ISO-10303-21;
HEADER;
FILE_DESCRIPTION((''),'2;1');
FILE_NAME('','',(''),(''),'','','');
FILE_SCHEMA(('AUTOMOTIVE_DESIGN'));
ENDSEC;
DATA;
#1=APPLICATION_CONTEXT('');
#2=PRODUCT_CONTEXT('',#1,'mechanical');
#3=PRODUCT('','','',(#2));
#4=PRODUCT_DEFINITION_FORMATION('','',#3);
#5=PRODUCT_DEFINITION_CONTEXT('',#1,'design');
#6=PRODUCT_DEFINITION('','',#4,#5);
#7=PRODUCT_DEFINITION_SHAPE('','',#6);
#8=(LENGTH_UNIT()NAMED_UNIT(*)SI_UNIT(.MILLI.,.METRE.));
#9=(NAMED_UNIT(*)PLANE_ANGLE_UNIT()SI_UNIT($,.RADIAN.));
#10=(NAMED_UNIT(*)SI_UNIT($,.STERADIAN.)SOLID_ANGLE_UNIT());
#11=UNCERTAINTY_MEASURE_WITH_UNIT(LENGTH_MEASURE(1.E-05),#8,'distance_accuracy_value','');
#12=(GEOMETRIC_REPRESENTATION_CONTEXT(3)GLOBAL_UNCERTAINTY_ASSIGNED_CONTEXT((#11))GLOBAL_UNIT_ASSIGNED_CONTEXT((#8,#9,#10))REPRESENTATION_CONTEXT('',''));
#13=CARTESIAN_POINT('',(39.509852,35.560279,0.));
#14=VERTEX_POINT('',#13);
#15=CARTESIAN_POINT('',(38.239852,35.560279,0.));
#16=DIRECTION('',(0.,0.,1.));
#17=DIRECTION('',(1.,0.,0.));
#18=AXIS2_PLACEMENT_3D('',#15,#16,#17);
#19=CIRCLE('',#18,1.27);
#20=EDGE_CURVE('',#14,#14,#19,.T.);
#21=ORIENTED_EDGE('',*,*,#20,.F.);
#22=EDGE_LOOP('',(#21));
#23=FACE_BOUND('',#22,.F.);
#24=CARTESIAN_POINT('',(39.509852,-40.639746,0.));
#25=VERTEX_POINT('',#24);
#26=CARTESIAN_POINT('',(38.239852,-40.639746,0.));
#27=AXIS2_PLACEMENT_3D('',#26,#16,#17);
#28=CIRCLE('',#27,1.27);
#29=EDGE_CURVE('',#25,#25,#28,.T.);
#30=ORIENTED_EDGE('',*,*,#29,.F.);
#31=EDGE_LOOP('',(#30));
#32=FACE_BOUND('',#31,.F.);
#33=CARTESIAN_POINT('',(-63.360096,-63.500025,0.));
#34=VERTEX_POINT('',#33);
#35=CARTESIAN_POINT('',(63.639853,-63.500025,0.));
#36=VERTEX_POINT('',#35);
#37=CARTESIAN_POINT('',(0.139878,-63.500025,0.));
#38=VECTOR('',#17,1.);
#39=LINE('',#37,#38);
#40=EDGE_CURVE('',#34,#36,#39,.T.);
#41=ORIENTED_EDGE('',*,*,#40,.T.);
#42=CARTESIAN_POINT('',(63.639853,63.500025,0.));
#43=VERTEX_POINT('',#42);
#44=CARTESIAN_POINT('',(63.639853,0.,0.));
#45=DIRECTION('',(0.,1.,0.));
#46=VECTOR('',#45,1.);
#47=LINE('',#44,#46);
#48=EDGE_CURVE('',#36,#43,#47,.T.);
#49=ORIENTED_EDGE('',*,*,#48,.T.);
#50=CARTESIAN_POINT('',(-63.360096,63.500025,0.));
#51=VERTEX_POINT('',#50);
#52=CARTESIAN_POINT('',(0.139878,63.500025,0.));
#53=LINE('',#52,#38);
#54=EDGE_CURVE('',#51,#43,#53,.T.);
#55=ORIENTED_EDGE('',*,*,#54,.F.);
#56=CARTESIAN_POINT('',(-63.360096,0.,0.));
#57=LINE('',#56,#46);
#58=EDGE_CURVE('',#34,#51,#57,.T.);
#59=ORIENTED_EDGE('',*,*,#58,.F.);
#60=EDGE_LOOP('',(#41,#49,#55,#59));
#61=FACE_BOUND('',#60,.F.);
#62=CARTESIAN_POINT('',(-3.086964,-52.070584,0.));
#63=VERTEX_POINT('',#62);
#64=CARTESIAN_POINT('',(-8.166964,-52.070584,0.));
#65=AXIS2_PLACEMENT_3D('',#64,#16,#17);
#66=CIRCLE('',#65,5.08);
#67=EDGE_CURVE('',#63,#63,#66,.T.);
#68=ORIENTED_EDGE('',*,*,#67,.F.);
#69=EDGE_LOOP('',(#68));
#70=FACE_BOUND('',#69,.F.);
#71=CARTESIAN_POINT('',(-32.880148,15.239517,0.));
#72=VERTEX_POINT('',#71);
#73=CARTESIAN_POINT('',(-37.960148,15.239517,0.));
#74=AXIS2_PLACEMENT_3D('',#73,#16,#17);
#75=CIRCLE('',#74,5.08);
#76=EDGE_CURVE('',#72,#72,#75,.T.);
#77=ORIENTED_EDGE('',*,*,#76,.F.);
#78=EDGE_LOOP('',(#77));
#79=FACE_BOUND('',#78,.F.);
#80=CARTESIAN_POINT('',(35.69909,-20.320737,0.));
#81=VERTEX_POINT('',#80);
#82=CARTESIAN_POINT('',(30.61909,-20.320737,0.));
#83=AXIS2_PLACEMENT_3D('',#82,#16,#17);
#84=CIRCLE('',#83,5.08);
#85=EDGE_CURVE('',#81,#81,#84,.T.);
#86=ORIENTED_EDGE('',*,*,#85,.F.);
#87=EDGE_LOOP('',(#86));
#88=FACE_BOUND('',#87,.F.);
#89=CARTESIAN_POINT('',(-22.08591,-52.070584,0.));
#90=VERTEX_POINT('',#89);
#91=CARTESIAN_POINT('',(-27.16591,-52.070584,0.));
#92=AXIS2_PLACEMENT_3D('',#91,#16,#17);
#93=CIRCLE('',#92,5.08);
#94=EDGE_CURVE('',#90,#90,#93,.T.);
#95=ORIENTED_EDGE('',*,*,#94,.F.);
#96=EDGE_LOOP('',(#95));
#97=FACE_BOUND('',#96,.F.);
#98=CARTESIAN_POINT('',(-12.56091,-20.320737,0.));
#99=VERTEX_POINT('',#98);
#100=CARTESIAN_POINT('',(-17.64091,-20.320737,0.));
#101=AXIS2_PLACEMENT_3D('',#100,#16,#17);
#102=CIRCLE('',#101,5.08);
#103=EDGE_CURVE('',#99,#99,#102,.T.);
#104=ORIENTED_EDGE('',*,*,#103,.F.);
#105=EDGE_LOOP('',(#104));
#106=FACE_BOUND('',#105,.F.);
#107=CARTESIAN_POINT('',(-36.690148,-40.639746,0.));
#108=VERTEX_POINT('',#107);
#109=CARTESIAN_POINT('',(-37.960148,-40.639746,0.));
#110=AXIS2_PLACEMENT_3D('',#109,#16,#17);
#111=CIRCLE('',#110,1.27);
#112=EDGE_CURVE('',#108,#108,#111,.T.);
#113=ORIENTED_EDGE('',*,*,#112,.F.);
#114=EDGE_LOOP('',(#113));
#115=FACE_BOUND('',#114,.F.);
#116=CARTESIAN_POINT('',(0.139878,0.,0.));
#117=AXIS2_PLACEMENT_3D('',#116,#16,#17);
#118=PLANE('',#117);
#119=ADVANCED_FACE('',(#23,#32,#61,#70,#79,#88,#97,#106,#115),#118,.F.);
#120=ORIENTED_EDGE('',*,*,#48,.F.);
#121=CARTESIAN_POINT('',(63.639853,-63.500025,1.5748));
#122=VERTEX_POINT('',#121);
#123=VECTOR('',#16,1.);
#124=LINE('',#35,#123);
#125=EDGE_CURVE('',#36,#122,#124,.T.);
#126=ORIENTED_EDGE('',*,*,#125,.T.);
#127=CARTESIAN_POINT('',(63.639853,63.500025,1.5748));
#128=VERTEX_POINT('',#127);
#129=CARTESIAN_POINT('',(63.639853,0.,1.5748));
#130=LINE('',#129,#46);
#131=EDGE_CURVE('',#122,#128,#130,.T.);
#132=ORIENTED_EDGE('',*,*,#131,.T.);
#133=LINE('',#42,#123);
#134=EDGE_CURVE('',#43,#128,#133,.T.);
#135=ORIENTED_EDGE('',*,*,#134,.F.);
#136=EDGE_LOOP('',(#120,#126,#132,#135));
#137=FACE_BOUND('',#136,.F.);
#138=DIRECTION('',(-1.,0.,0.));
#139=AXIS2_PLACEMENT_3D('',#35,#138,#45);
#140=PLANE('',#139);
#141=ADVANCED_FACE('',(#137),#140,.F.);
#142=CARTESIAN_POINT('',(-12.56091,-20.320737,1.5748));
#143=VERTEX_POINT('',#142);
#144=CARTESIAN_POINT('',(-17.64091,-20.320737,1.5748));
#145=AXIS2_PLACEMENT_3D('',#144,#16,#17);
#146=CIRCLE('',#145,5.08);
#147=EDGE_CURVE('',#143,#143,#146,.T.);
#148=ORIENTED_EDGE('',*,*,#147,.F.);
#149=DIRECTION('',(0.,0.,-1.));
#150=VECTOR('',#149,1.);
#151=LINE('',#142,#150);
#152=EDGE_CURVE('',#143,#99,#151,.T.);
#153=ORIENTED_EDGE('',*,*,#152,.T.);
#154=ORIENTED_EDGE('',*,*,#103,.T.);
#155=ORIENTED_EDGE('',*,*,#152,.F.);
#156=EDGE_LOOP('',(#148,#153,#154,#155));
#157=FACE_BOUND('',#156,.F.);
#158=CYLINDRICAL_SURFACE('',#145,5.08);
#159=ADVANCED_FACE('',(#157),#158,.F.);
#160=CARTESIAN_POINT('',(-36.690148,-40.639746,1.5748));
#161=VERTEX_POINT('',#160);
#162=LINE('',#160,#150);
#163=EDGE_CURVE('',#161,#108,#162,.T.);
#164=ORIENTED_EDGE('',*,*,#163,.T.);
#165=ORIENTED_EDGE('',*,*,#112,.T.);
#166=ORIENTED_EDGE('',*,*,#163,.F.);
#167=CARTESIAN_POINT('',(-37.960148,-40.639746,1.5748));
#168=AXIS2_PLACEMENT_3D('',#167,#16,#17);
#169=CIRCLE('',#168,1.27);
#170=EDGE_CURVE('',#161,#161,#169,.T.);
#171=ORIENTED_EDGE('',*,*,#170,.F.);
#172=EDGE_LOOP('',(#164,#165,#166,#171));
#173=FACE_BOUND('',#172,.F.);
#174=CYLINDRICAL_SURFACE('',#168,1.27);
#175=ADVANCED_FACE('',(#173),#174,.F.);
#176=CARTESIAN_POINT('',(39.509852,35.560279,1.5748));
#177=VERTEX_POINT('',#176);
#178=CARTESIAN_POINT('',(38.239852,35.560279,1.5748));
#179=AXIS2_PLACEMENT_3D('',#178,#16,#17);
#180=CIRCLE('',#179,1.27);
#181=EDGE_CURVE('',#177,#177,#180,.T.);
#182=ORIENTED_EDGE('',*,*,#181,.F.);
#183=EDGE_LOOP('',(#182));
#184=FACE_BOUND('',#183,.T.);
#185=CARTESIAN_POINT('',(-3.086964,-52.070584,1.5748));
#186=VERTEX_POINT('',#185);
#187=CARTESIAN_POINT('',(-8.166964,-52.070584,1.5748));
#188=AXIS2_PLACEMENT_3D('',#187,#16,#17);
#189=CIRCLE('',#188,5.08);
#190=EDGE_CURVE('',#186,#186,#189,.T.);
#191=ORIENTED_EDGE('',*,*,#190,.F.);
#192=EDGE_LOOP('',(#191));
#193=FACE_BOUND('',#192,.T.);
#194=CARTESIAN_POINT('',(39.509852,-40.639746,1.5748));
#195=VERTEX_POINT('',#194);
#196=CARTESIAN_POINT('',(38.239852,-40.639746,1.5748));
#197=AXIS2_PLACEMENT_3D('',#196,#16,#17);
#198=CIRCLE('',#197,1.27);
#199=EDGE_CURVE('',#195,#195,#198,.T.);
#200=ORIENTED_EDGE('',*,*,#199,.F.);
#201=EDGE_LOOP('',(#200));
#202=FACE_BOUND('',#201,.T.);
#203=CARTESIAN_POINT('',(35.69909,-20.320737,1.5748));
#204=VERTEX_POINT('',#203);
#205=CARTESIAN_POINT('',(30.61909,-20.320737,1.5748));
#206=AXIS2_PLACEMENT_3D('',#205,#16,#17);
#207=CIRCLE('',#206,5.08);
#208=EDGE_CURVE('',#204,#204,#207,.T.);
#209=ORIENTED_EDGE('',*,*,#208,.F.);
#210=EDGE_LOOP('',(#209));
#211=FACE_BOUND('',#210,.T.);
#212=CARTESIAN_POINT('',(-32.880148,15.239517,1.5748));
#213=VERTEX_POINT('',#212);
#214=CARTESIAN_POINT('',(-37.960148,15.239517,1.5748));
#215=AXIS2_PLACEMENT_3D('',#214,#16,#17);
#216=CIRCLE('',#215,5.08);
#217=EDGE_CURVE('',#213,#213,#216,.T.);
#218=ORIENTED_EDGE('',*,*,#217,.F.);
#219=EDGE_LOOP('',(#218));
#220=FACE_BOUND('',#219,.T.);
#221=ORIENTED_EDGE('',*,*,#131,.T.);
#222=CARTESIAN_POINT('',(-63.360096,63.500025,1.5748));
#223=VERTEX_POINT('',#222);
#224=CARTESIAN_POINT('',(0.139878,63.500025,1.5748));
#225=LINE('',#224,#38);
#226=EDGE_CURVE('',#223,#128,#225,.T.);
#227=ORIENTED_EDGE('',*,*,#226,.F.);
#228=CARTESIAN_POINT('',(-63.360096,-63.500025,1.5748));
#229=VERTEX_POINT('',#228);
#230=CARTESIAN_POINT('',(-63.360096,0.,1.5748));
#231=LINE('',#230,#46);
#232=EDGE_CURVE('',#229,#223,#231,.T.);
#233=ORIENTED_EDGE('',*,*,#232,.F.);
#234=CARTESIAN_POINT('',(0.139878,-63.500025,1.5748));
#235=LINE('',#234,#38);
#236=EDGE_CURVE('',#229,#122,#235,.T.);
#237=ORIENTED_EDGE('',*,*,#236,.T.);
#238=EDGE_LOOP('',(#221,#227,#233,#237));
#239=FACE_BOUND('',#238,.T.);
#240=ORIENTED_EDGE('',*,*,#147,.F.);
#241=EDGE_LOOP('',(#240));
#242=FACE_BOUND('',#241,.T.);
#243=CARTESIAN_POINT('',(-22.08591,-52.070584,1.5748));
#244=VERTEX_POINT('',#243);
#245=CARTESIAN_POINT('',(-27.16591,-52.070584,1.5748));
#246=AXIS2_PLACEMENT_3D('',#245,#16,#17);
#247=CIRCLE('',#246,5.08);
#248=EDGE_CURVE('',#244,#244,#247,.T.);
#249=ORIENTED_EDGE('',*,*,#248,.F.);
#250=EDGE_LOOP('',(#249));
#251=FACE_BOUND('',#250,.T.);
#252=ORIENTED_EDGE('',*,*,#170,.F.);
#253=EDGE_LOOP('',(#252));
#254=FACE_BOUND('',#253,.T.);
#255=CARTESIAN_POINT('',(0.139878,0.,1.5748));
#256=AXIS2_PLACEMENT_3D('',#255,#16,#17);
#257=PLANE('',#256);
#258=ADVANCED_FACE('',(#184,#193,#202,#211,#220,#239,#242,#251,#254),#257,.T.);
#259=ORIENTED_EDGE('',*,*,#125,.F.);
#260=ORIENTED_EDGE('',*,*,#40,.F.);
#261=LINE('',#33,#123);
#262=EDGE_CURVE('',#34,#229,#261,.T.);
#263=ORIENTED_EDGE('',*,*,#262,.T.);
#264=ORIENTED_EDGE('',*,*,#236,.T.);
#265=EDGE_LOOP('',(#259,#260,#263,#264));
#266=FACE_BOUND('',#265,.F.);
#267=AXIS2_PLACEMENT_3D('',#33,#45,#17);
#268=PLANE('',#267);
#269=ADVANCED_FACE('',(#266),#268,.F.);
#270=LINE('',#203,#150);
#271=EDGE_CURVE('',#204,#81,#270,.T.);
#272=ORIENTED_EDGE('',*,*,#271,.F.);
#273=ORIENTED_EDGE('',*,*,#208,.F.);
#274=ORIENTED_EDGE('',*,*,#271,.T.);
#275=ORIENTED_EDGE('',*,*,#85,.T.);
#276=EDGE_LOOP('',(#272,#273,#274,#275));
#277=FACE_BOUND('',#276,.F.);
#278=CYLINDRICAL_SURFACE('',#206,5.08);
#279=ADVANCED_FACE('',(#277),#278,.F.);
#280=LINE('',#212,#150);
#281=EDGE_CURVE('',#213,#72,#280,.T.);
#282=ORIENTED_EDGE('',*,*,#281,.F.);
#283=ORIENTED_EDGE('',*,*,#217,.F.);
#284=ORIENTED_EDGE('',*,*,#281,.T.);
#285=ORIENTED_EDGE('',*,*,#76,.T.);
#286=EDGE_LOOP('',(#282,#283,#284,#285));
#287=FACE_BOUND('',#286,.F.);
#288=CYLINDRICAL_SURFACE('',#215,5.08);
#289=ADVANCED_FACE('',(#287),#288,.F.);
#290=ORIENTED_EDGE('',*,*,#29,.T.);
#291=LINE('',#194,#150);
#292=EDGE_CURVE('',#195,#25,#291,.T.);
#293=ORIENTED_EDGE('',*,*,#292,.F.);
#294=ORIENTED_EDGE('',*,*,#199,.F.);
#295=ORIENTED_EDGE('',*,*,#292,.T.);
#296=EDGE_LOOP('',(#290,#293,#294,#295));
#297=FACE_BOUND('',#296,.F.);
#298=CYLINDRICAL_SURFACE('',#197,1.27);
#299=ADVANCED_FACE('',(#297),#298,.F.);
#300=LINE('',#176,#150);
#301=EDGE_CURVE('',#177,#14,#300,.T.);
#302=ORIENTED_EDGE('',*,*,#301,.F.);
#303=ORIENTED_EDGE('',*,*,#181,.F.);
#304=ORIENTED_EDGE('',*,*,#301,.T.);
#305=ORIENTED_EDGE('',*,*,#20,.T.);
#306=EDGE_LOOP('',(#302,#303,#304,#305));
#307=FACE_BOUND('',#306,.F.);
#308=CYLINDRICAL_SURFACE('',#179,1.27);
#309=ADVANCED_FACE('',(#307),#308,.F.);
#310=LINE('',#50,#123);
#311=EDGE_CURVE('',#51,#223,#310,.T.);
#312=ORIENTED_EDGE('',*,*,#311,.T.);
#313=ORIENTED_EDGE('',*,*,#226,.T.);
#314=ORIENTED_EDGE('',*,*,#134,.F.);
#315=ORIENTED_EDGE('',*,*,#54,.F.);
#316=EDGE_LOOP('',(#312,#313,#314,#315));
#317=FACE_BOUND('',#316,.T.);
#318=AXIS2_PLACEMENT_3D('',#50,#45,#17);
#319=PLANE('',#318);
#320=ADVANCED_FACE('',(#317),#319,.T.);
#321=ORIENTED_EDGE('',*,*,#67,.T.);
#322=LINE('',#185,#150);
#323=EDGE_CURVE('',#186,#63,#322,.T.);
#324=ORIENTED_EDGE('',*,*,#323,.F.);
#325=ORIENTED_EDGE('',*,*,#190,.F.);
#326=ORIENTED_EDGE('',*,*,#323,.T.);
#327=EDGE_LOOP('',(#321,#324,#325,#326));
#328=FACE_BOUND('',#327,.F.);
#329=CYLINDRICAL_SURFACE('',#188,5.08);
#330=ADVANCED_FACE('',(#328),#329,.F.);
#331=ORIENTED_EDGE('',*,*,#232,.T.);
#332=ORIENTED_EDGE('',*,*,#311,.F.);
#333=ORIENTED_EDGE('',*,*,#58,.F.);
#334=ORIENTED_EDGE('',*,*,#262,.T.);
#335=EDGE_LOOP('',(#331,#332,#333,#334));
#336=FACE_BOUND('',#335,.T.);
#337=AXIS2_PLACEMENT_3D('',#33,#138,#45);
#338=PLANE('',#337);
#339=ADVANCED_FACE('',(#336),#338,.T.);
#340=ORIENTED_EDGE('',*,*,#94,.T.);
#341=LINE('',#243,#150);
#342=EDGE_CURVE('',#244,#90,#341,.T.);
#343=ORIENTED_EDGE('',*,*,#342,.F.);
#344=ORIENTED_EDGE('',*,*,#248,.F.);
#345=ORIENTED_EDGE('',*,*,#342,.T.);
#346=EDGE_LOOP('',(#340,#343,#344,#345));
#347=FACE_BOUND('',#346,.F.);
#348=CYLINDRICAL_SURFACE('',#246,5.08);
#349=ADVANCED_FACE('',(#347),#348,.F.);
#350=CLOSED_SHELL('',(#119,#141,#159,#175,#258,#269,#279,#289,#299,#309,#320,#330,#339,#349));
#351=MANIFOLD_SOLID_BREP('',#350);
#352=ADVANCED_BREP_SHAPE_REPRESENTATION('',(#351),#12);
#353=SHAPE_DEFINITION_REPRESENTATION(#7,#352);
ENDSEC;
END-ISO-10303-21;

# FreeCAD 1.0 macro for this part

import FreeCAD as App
import Part
import Sketcher
Q = App.Units.Quantity


def add_polygon(sketch, points):
    """Adds a closed chain of lines whose ends are joined by coincident constraints."""
    first, n = sketch.GeometryCount, len(points)
    for a, b in zip(points, points[1:] + points[:1]):
        sketch.addGeometry(Part.LineSegment(App.Vector(*a, 0), App.Vector(*b, 0)), False)
    for i in range(n):
        sketch.addConstraint(Sketcher.Constraint("Coincident", first + i, 2, first + (i + 1) % n, 1))

doc = App.newDocument("Part")
params = doc.addObject("Spreadsheet::Sheet", "Params")
for row, (alias, value) in enumerate([
    ("pad1_length", "0.062 in"),
    ("sketch2_diameter", "0.4 in"),
    ("sketch2_diameter2", "0.1 in"),
], start=1):
    params.set(f"A{row}", alias)
    params.set(f"B{row}", "=" + value)
    params.setAlias(f"B{row}", alias)

body = doc.addObject("PartDesign::Body", "Body")

# Sketch on XY plane
sketch1 = body.newObject("Sketcher::SketchObject", "Sketch")
sketch1.AttachmentSupport = (doc.getObject("XY_Plane"), [""])
sketch1.MapMode = "FlatFace"
add_polygon(sketch1, [(-63, 64), (-63, -64), (64, -64), (64, 64)])  # lines 0-3
sketch1.addConstraint(Sketcher.Constraint("Vertical", 0))
sketch1.addConstraint(Sketcher.Constraint("Horizontal", 1))
sketch1.addConstraint(Sketcher.Constraint("Vertical", 2))
sketch1.addConstraint(Sketcher.Constraint("Horizontal", 3))
sketch1.addConstraint(Sketcher.Constraint("DistanceX", 1, 1, 1, 2, 126.999949))
sketch1.addConstraint(Sketcher.Constraint("DistanceY", 0, 2, 0, 1, 127.00005))
sketch1.addConstraint(Sketcher.Constraint("DistanceX", 0, 2, -1, 1, 63.360096))
sketch1.addConstraint(Sketcher.Constraint("DistanceY", 0, 2, -1, 1, 63.500025))
pad1 = body.newObject("PartDesign::Pad", "Pad")
pad1.Profile = sketch1
pad1.setExpression("Length", "Params.pad1_length")

# Sketch on XY plane
sketch2 = body.newObject("Sketcher::SketchObject", "Sketch001")
sketch2.AttachmentSupport = (doc.getObject("XY_Plane"), [""])
sketch2.MapMode = "FlatFace"
sketch2.AttachmentOffset = App.Placement(App.Vector(0, 0, 0.062 * 25.4), App.Rotation())
sketch2.addGeometry(Part.Circle(App.Vector(-27.2, -52.1, 0), App.Vector(0, 0, 1), 5.1), False)
sketch2.addGeometry(Part.Circle(App.Vector(-8.2, -52.1, 0), App.Vector(0, 0, 1), 5.1), False)
sketch2.addGeometry(Part.Circle(App.Vector(-38, -40.6, 0), App.Vector(0, 0, 1), 1.3), False)
sketch2.addGeometry(Part.Circle(App.Vector(38.2, -40.6, 0), App.Vector(0, 0, 1), 1.3), False)
sketch2.addGeometry(Part.Circle(App.Vector(38.2, 35.6, 0), App.Vector(0, 0, 1), 1.3), False)
sketch2.addGeometry(Part.Circle(App.Vector(-17.6, -20.3, 0), App.Vector(0, 0, 1), 5.1), False)
sketch2.addGeometry(Part.Circle(App.Vector(30.6, -20.3, 0), App.Vector(0, 0, 1), 5.1), False)
sketch2.addGeometry(Part.Circle(App.Vector(-38, 15.2, 0), App.Vector(0, 0, 1), 5.1), False)
sketch2.addConstraint(Sketcher.Constraint("Equal", 0, 1))
sketch2.addConstraint(Sketcher.Constraint("Equal", 2, 3))
sketch2.addConstraint(Sketcher.Constraint("Equal", 3, 4))
sketch2.addConstraint(Sketcher.Constraint("Equal", 1, 5))
sketch2.addConstraint(Sketcher.Constraint("Equal", 5, 6))
sketch2.addConstraint(Sketcher.Constraint("Equal", 6, 7))
sketch2.addConstraint(Sketcher.Constraint("Horizontal", 0, 3, 1, 3))
sketch2.addConstraint(Sketcher.Constraint("Horizontal", 2, 3, 3, 3))
sketch2.addConstraint(Sketcher.Constraint("Horizontal", 5, 3, 6, 3))
sketch2.addConstraint(Sketcher.Constraint("Vertical", 3, 3, 4, 3))
sketch2.addConstraint(Sketcher.Constraint("Vertical", 2, 3, 7, 3))
sketch2.addConstraint(Sketcher.Constraint("Diameter", 0, Q("0.4 in")))
sketch2.addConstraint(Sketcher.Constraint("Diameter", 2, Q("0.1 in")))
sketch2.addConstraint(Sketcher.Constraint("DistanceX", 2, 3, 3, 3, Q("3 in")))
sketch2.addConstraint(Sketcher.Constraint("DistanceX", 5, 3, 6, 3, Q("1.9 in")))
sketch2.addConstraint(Sketcher.Constraint("DistanceX", 0, 3, 5, 3, Q("0.375 in")))
sketch2.addConstraint(Sketcher.Constraint("DistanceY", 0, 3, 7, 3, 67.310101))
sketch2.addConstraint(Sketcher.Constraint("DistanceX", 0, 3, -1, 1, 27.16591))
sketch2.addConstraint(Sketcher.Constraint("DistanceY", -1, 1, 4, 3, 35.560279))
sketch2.addConstraint(Sketcher.Constraint("DistanceX", 0, 3, 3, 3, 65.405762))
sketch2.addConstraint(Sketcher.Constraint("DistanceY", 2, 3, 5, 3, 20.319009))
sketch2.addConstraint(Sketcher.Constraint("DistanceY", 0, 3, -1, 1, 52.070584))
sketch2.addConstraint(Sketcher.Constraint("DistanceX", 1, 3, -1, 1, 8.166964))
sketch2.addConstraint(Sketcher.Constraint("DistanceY", 2, 3, -1, 1, 40.639746))
sketch2.setExpression("Constraints[11]", "Params.sketch2_diameter")
sketch2.setExpression("Constraints[12]", "Params.sketch2_diameter2")
pocket1 = body.newObject("PartDesign::Pocket", "Pocket")
pocket1.Profile = sketch2
pocket1.Type = "ThroughAll"

doc.recompute()
